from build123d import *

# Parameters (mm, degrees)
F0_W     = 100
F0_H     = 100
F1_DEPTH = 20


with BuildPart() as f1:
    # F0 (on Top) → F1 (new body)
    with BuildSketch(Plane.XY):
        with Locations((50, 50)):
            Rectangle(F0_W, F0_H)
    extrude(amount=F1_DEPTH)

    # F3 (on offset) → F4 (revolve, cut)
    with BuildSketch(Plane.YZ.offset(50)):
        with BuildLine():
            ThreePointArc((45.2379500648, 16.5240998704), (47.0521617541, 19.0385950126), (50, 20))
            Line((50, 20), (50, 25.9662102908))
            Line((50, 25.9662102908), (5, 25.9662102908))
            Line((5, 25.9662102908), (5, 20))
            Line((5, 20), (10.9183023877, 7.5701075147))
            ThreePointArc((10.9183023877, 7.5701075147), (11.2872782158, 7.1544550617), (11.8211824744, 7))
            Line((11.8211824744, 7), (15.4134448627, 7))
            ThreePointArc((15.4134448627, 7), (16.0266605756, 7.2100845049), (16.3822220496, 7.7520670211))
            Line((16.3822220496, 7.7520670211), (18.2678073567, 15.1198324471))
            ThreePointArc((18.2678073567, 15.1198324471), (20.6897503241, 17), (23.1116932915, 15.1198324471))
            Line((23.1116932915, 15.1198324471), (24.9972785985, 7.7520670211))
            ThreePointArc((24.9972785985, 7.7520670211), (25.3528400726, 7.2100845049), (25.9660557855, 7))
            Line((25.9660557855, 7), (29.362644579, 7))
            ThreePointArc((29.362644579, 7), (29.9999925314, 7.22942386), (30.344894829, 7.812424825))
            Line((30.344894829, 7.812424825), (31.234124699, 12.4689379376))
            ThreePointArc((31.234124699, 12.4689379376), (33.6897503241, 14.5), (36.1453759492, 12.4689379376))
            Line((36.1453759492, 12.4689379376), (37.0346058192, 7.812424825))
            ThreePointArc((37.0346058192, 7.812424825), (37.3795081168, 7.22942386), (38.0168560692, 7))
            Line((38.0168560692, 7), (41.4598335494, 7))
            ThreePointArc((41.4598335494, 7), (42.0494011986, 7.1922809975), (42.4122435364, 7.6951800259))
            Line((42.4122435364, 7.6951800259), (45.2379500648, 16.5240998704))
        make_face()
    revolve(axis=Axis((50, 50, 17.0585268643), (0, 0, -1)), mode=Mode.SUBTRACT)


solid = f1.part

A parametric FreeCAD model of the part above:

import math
import FreeCAD as App
import Part
import Sketcher
Q = App.Units.Quantity


def add_polygon(sketch, points):
    """Adds a closed chain of lines whose ends are joined by coincident constraints."""
    first, n = sketch.GeometryCount, len(points)
    for a, b in zip(points, points[1:] + points[:1]):
        sketch.addGeometry(Part.LineSegment(App.Vector(*a, 0), App.Vector(*b, 0)), False)
    for i in range(n):
        sketch.addConstraint(Sketcher.Constraint("Coincident", first + i, 2, first + (i + 1) % n, 1))

doc = App.newDocument("Part")
body = doc.addObject("PartDesign::Body", "Body")

# Sketch on XY plane
sketch1 = body.newObject("Sketcher::SketchObject", "Sketch")
sketch1.AttachmentSupport = (doc.getObject("XY_Plane"), [""])
sketch1.MapMode = "FlatFace"
add_polygon(sketch1, [(0, 100), (0, 0), (100, 0), (100, 100)])  # lines 0-3
sketch1.addConstraint(Sketcher.Constraint("Vertical", 0))
sketch1.addConstraint(Sketcher.Constraint("Horizontal", 1))
sketch1.addConstraint(Sketcher.Constraint("Vertical", 2))
sketch1.addConstraint(Sketcher.Constraint("Horizontal", 3))
sketch1.addConstraint(Sketcher.Constraint("Coincident", 0, 2, -1, 1))
sketch1.addConstraint(Sketcher.Constraint("Equal", 3, 0))
sketch1.addConstraint(Sketcher.Constraint("DistanceX", 1, 1, 1, 2, Q("100 mm")))
pad1 = body.newObject("PartDesign::Pad", "Pad")
pad1.Profile = sketch1
pad1.Length = 20

# Sketch on YZ plane
sketch2 = body.newObject("Sketcher::SketchObject", "Sketch001")
sketch2.AttachmentSupport = (doc.getObject("YZ_Plane"), [""])
sketch2.MapMode = "FlatFace"
sketch2.AttachmentOffset = App.Placement(App.Vector(0, 0, 50), App.Rotation())
sketch2.addGeometry(Part.ArcOfCircle(Part.Circle(App.Vector(50, 15, 0), App.Vector(0, 0, 1), 5), math.radians(90), math.radians(162.252667)), False)
sketch2.addGeometry(Part.LineSegment(App.Vector(50, 20, 0), App.Vector(50, 25.96621, 0)), False)
sketch2.addGeometry(Part.LineSegment(App.Vector(50, 25.96621, 0), App.Vector(5, 25.96621, 0)), False)
sketch2.addGeometry(Part.LineSegment(App.Vector(5, 25.96621, 0), App.Vector(5, 20, 0)), False)
sketch2.addGeometry(Part.LineSegment(App.Vector(5, 20, 0), App.Vector(10.918302, 7.570108, 0)), False)
sketch2.addGeometry(Part.ArcOfCircle(Part.Circle(App.Vector(11.821182, 8, 0), App.Vector(0, 0, 1), 1), math.radians(-154.539263), math.radians(-90)), False)
sketch2.addGeometry(Part.LineSegment(App.Vector(11.821182, 7, 0), App.Vector(15.413445, 7, 0)), False)
sketch2.addGeometry(Part.ArcOfCircle(Part.Circle(App.Vector(15.413445, 8, 0), App.Vector(0, 0, 1), 1), math.radians(-90), math.radians(-14.35523)), False)
sketch2.addGeometry(Part.LineSegment(App.Vector(16.382222, 7.752067, 0), App.Vector(18.267807, 15.119832, 0)), False)
sketch2.addGeometry(Part.ArcOfCircle(Part.Circle(App.Vector(20.68975, 14.5, 0), App.Vector(0, 0, 1), 2.5), math.radians(14.35523), math.radians(165.64477)), False)
sketch2.addGeometry(Part.LineSegment(App.Vector(23.111693, 15.119832, 0), App.Vector(24.997279, 7.752067, 0)), False)
sketch2.addGeometry(Part.ArcOfCircle(Part.Circle(App.Vector(25.966056, 8, 0), App.Vector(0, 0, 1), 1), math.radians(-165.64477), math.radians(-90)), False)
sketch2.addGeometry(Part.LineSegment(App.Vector(25.966056, 7, 0), App.Vector(29.362645, 7, 0)), False)
sketch2.addGeometry(Part.ArcOfCircle(Part.Circle(App.Vector(29.362645, 8, 0), App.Vector(0, 0, 1), 1), math.radians(-90), math.radians(-10.811308)), False)
sketch2.addGeometry(Part.LineSegment(App.Vector(30.344895, 7.812425, 0), App.Vector(31.234125, 12.468938, 0)), False)
sketch2.addGeometry(Part.ArcOfCircle(Part.Circle(App.Vector(33.68975, 12, 0), App.Vector(0, 0, 1), 2.5), math.radians(10.811308), math.radians(169.188692)), False)
sketch2.addGeometry(Part.LineSegment(App.Vector(36.145376, 12.468938, 0), App.Vector(37.034606, 7.812425, 0)), False)
sketch2.addGeometry(Part.ArcOfCircle(Part.Circle(App.Vector(38.016856, 8, 0), App.Vector(0, 0, 1), 1), math.radians(-169.188692), math.radians(-90)), False)
sketch2.addGeometry(Part.LineSegment(App.Vector(38.016856, 7, 0), App.Vector(41.459834, 7, 0)), False)
sketch2.addGeometry(Part.ArcOfCircle(Part.Circle(App.Vector(41.459834, 8, 0), App.Vector(0, 0, 1), 1), math.radians(-90), math.radians(-17.747333)), False)
sketch2.addGeometry(Part.LineSegment(App.Vector(42.412244, 7.69518, 0), App.Vector(45.23795, 16.5241, 0)), False)
sketch2.addGeometry(Part.LineSegment(App.Vector(50, 25.96621, 0), App.Vector(50, 7, 0)), True)  # axis
sketch2.addConstraint(Sketcher.Constraint("Coincident", 0, 1, 1, 1))
sketch2.addConstraint(Sketcher.Constraint("Coincident", 1, 2, 2, 1))
sketch2.addConstraint(Sketcher.Constraint("Coincident", 2, 2, 3, 1))
sketch2.addConstraint(Sketcher.Constraint("Coincident", 3, 2, 4, 1))
sketch2.addConstraint(Sketcher.Constraint("Tangent", 4, 2, 5, 1))
sketch2.addConstraint(Sketcher.Constraint("Tangent", 5, 2, 6, 1))
sketch2.addConstraint(Sketcher.Constraint("Tangent", 6, 2, 7, 1))
sketch2.addConstraint(Sketcher.Constraint("Tangent", 7, 2, 8, 1))
sketch2.addConstraint(Sketcher.Constraint("Tangent", 8, 2, 9, 2))
sketch2.addConstraint(Sketcher.Constraint("Tangent", 9, 1, 10, 1))
sketch2.addConstraint(Sketcher.Constraint("Tangent", 10, 2, 11, 1))
sketch2.addConstraint(Sketcher.Constraint("Tangent", 11, 2, 12, 1))
sketch2.addConstraint(Sketcher.Constraint("Tangent", 12, 2, 13, 1))
sketch2.addConstraint(Sketcher.Constraint("Tangent", 13, 2, 14, 1))
sketch2.addConstraint(Sketcher.Constraint("Tangent", 14, 2, 15, 2))
sketch2.addConstraint(Sketcher.Constraint("Tangent", 15, 1, 16, 1))
sketch2.addConstraint(Sketcher.Constraint("Tangent", 16, 2, 17, 1))
sketch2.addConstraint(Sketcher.Constraint("Tangent", 17, 2, 18, 1))
sketch2.addConstraint(Sketcher.Constraint("Tangent", 18, 2, 19, 1))
sketch2.addConstraint(Sketcher.Constraint("Tangent", 19, 2, 20, 1))
sketch2.addConstraint(Sketcher.Constraint("Tangent", 20, 2, 0, 2))
sketch2.addConstraint(Sketcher.Constraint("Vertical", 1))
sketch2.addConstraint(Sketcher.Constraint("Horizontal", 2))
sketch2.addConstraint(Sketcher.Constraint("Vertical", 3))
sketch2.addConstraint(Sketcher.Constraint("Horizontal", 6))
sketch2.addConstraint(Sketcher.Constraint("Horizontal", 12))
sketch2.addConstraint(Sketcher.Constraint("Horizontal", 18))
sketch2.addConstraint(Sketcher.Constraint("Vertical", 21))
sketch2.addConstraint(Sketcher.Constraint("Coincident", 21, 1, 1, 2))
sketch2.addConstraint(Sketcher.Constraint("Equal", 5, 7))
sketch2.addConstraint(Sketcher.Constraint("Equal", 7, 11))
sketch2.addConstraint(Sketcher.Constraint("Equal", 11, 13))
sketch2.addConstraint(Sketcher.Constraint("Equal", 9, 15))
sketch2.addConstraint(Sketcher.Constraint("Equal", 13, 17))
sketch2.addConstraint(Sketcher.Constraint("Equal", 17, 19))
sketch2.addConstraint(Sketcher.Constraint("Horizontal", 7, 3, 11, 3))
sketch2.addConstraint(Sketcher.Constraint("Horizontal", 13, 3, 17, 3))
sketch2.addConstraint(Sketcher.Constraint("Horizontal", 0, 1, 3, 2))
sketch2.addConstraint(Sketcher.Constraint("Horizontal", 8, 2, 9, 1))
sketch2.addConstraint(Sketcher.Constraint("Horizontal", 14, 2, 15, 1))
sketch2.addConstraint(Sketcher.Constraint("Horizontal", 18, 2, 21, 2))
sketch2.addConstraint(Sketcher.Constraint("Radius", 0, Q("5 mm")))
sketch2.addConstraint(Sketcher.Constraint("Radius", 5, Q("1 mm")))
sketch2.addConstraint(Sketcher.Constraint("Radius", 9, Q("2.5 mm")))
sketch2.addConstraint(Sketcher.Constraint("DistanceX", 2, 2, 2, 1, Q("45 mm")))
sketch2.addConstraint(Sketcher.Constraint("DistanceX", -1, 1, 0, 3, Q("50 mm")))
sketch2.addConstraint(Sketcher.Constraint("DistanceY", -1, 1, 0, 3, Q("15 mm")))
sketch2.addConstraint(Sketcher.Constraint("DistanceY", -1, 1, 5, 3, Q("8 mm")))
sketch2.addConstraint(Sketcher.Constraint("DistanceY", -1, 1, 15, 3, Q("12 mm")))
sketch2.addConstraint(Sketcher.Constraint("DistanceX", -1, 1, 0, 1, Q("50 mm")))
sketch2.addConstraint(Sketcher.Constraint("DistanceX", 9, 3, 15, 3, Q("13 mm")))
sketch2.addConstraint(Sketcher.Constraint("DistanceY", -1, 1, 9, 3, Q("14.5 mm")))
sketch2.addConstraint(Sketcher.Constraint("DistanceX", 12, 1, 12, 2, Q("3.396589 mm")))
sketch2.addConstraint(Sketcher.Constraint("DistanceY", 1, 1, 1, 2, Q("5.96621 mm")))
sketch2.addConstraint(Sketcher.Constraint("DistanceY", -1, 1, 20, 2, Q("16.5241 mm")))
sketch2.addConstraint(Sketcher.Constraint("DistanceX", 7, 3, 13, 3, Q("13.9492 mm")))
sketch2.addConstraint(Sketcher.Constraint("DistanceX", 6, 1, 6, 2, Q("3.592262 mm")))
sketch2.addConstraint(Sketcher.Constraint("DistanceX", 18, 1, 18, 2, Q("3.442977 mm")))
groove = body.newObject("PartDesign::Groove", "Groove")
groove.Profile = sketch2
groove.ReferenceAxis = (sketch2, ["Axis0"])
groove.Angle = 360

doc.recompute()
